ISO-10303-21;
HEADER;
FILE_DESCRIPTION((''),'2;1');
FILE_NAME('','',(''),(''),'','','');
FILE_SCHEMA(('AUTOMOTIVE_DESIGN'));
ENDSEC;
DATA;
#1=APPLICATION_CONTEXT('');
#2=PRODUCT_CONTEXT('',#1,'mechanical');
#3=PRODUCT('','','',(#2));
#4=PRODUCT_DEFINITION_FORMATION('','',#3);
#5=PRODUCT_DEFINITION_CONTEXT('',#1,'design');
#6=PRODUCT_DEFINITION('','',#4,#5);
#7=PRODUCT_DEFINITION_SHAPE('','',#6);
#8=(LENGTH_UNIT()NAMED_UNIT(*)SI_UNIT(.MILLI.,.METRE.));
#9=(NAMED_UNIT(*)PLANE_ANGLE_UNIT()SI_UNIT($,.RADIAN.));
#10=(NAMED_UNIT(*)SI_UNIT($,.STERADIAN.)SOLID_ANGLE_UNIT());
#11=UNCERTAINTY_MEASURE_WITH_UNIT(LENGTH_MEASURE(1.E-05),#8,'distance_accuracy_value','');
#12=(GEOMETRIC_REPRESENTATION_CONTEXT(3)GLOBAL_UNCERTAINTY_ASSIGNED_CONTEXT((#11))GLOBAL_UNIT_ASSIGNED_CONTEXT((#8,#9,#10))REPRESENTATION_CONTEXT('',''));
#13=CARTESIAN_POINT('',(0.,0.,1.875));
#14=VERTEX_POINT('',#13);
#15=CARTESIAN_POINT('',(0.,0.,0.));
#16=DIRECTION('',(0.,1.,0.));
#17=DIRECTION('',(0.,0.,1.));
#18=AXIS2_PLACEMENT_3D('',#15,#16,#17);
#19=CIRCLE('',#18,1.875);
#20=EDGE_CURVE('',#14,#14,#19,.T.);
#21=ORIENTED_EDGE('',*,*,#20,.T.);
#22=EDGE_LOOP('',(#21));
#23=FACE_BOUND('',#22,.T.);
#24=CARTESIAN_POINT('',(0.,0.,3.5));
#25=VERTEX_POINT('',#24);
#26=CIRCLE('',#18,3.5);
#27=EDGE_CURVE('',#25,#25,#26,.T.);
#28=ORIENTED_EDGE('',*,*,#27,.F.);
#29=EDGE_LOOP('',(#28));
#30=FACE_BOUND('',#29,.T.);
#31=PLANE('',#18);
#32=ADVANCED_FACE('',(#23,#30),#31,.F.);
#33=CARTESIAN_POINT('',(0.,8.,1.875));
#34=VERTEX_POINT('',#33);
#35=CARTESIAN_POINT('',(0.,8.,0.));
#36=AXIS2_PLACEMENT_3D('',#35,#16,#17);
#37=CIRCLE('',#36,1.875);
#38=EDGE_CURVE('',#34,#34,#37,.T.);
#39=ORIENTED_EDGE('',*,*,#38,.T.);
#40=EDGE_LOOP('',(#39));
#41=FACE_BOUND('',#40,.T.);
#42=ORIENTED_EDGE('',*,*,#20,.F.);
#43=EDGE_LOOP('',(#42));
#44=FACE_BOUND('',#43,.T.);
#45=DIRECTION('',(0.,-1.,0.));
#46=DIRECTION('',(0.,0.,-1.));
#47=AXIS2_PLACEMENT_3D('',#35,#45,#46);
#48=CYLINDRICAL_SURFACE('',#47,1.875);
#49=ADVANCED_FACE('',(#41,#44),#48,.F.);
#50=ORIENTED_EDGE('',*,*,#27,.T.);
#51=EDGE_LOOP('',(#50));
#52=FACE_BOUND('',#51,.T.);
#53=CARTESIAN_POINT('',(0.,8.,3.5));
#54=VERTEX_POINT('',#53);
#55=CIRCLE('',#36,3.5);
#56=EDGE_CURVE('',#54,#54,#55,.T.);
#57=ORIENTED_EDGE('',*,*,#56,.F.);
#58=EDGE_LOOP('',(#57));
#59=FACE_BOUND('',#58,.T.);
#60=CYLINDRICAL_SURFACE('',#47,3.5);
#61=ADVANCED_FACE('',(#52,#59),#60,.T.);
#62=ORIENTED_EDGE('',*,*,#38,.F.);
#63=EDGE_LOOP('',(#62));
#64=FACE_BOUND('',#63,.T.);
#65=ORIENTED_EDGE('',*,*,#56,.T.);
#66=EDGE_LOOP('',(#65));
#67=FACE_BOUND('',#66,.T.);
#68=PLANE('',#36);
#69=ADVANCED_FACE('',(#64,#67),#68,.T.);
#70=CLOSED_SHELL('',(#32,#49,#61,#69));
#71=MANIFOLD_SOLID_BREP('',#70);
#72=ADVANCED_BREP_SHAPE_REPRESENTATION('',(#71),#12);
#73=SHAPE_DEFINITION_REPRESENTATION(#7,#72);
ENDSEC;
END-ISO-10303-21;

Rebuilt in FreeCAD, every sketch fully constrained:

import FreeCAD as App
import Part
import Sketcher
from FreeCAD import Vector

doc = App.newDocument("Part")
params = doc.addObject("Spreadsheet::Sheet", "Params")
for row, (alias, value) in enumerate([
    ("sketch1_diameter", "7 mm"),
    ("sketch1_diameter2", "3.75 mm"),
    ("pad1_length", "8 mm"),
], start=1):
    params.set(f"A{row}", alias)
    params.set(f"B{row}", "=" + value)
    params.setAlias(f"B{row}", alias)

body = doc.addObject("PartDesign::Body", "Body")

sketch1 = body.newObject("Sketcher::SketchObject", "Sketch")
sketch1.AttachmentSupport = (doc.getObject("XZ_Plane"), [""])
sketch1.MapMode = "FlatFace"
sketch1.addGeometry(Part.Circle(Vector(0, 0, 0), Vector(0, 0, 1), 3.5), False)
sketch1.addGeometry(Part.Circle(Vector(0, 0, 0), Vector(0, 0, 1), 1.9), False)
sketch1.addConstraint(Sketcher.Constraint("Coincident", 0, 3, -1, 1))
sketch1.addConstraint(Sketcher.Constraint("Coincident", 1, 3, -1, 1))
sketch1.addConstraint(Sketcher.Constraint("Diameter", 0, 7.0))
sketch1.addConstraint(Sketcher.Constraint("Diameter", 1, 3.75))
sketch1.setExpression("Constraints[2]", "Params.sketch1_diameter")
sketch1.setExpression("Constraints[3]", "Params.sketch1_diameter2")
pad1 = body.newObject("PartDesign::Pad", "Pad")
pad1.Profile = sketch1
pad1.setExpression("Length", "Params.pad1_length")
pad1.Reversed = True

doc.recompute()
